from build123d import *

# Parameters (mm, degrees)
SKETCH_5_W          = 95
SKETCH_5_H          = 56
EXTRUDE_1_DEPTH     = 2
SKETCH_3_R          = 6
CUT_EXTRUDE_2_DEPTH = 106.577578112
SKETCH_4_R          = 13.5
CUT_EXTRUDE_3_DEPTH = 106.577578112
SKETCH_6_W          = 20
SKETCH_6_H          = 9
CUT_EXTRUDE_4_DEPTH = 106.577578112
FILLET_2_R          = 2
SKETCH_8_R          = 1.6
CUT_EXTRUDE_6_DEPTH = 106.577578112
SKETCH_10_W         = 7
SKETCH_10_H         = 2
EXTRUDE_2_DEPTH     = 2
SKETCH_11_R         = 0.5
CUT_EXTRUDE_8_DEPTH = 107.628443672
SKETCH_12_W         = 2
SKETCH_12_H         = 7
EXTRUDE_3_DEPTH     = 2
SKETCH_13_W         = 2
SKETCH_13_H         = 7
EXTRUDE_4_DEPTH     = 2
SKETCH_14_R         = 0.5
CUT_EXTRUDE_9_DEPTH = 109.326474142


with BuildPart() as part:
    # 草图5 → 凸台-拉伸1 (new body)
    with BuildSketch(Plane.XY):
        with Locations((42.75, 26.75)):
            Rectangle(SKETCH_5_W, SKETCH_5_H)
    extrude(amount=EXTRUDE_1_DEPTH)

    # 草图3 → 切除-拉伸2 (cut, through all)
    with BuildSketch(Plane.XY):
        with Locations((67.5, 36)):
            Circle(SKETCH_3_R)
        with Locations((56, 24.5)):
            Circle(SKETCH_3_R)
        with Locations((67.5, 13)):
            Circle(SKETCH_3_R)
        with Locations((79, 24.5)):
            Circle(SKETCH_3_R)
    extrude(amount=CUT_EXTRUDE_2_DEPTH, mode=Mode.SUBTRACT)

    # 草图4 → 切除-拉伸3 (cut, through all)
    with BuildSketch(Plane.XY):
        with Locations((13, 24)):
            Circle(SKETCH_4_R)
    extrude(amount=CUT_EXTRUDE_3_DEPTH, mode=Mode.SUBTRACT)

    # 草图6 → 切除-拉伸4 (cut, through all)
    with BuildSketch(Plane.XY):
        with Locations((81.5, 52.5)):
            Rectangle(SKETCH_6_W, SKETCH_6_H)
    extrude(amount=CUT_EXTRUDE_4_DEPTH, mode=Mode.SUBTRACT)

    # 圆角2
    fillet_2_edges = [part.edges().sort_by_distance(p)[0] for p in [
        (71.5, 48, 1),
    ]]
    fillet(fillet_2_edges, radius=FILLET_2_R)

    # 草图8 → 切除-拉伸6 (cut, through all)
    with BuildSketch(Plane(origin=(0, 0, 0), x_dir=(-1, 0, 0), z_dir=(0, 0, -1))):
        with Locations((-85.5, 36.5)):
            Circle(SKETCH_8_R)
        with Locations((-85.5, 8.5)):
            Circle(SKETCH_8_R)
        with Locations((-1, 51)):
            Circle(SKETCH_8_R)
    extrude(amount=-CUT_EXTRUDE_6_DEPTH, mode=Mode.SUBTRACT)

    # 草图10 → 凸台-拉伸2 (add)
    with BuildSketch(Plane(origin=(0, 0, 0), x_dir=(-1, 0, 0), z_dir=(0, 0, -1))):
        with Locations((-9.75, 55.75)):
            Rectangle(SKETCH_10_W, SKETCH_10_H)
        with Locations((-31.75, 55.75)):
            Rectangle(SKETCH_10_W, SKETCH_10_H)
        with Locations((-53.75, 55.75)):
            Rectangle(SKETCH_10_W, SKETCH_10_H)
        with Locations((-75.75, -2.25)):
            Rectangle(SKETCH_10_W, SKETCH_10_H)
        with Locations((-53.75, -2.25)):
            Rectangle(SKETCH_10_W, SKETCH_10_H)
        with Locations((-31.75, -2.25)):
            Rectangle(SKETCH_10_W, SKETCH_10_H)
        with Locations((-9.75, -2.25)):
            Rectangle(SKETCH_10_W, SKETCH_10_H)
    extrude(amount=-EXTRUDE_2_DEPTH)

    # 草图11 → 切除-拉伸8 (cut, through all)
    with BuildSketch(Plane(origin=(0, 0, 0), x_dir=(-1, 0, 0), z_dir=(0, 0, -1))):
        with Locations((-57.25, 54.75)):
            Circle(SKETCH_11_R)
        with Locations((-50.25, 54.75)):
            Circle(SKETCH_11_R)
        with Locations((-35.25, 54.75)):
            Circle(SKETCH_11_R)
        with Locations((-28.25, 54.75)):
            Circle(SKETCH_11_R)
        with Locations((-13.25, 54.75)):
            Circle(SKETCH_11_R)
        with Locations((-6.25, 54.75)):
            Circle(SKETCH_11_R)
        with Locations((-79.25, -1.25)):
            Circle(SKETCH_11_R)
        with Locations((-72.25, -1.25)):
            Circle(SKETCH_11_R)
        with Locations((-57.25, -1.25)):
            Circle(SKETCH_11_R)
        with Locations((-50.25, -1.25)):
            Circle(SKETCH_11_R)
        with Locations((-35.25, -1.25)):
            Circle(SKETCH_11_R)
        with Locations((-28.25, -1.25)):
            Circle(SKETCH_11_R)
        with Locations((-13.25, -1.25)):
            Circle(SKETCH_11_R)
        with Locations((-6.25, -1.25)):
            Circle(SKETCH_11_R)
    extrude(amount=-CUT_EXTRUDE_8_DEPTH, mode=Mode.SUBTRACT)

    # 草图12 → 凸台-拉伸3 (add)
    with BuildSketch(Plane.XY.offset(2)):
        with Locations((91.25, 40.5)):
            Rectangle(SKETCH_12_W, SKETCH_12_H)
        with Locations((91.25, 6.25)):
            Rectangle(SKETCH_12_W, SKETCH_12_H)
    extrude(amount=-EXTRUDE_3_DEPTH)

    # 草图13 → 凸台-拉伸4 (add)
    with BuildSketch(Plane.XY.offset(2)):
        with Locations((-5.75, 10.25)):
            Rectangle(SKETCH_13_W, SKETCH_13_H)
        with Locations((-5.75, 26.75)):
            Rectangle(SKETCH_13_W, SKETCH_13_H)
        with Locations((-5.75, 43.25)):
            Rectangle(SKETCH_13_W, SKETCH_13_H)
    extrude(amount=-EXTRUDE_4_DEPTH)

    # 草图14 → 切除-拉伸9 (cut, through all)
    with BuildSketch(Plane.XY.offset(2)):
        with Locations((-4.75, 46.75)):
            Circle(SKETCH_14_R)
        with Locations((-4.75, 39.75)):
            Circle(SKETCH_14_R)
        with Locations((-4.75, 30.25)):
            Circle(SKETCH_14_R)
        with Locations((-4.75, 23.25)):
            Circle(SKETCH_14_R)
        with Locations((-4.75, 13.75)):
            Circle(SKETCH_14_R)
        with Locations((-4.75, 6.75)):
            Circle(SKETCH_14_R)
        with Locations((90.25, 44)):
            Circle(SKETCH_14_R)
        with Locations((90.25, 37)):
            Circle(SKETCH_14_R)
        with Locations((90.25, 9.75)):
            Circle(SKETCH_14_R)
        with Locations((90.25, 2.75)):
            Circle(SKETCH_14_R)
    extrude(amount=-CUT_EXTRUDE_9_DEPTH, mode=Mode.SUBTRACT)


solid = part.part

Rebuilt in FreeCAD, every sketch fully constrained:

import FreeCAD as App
import Part
import Sketcher

V = App.Vector


def edges_at(feature, points):
    """Names of the edges that pass closest to the given points."""
    edges = feature.Shape.Edges
    near = lambda p: min(range(len(edges)), key=lambda i: edges[i].distToShape(Part.Vertex(*p))[0])
    return sorted({f"Edge{near(p) + 1}" for p in points})


def add_polygon(sketch, points):
    """Adds a closed chain of lines whose ends are joined by coincident constraints."""
    first, n = sketch.GeometryCount, len(points)
    for a, b in zip(points, points[1:] + points[:1]):
        sketch.addGeometry(Part.LineSegment(App.Vector(*a, 0), App.Vector(*b, 0)), False)
    for i in range(n):
        sketch.addConstraint(Sketcher.Constraint("Coincident", first + i, 2, first + (i + 1) % n, 1))

doc = App.newDocument("Part")
body = doc.addObject("PartDesign::Body", "Body")

sketch1 = body.newObject("Sketcher::SketchObject", "Sketch")
sketch1.AttachmentSupport = (doc.getObject("XY_Plane"), [""])
sketch1.MapMode = "FlatFace"
add_polygon(sketch1, [(-5, 55), (-5, -1), (90, -1), (90, 55)])
sketch1.addConstraint([
    Sketcher.Constraint("Vertical", 0),
    Sketcher.Constraint("Horizontal", 1),
    Sketcher.Constraint("Vertical", 2),
    Sketcher.Constraint("Horizontal", 3),
    Sketcher.Constraint("DistanceX", 1, 1, 1, 2, 95.0),
    Sketcher.Constraint("DistanceY", 0, 2, 0, 1, 56.0),
    Sketcher.Constraint("DistanceX", 0, 2, -1, 1, 4.75),
    Sketcher.Constraint("DistanceY", 0, 2, -1, 1, 1.25),
])
pad1 = body.newObject("PartDesign::Pad", "Pad")
pad1.Profile = sketch1
pad1.Length = 2

sketch2 = body.newObject("Sketcher::SketchObject", "Sketch001")
sketch2.AttachmentSupport = (doc.getObject("XY_Plane"), [""])
sketch2.MapMode = "FlatFace"
sketch2.addGeometry([
    Part.Circle(V(68, 36, 0), V(0, 0, 1), 6),
    Part.Circle(V(56, 24, 0), V(0, 0, 1), 6),
    Part.Circle(V(68, 13, 0), V(0, 0, 1), 6),
    Part.Circle(V(79, 24, 0), V(0, 0, 1), 6),
], False)
sketch2.addConstraint([
    Sketcher.Constraint("Equal", 0, 1),
    Sketcher.Constraint("Equal", 1, 2),
    Sketcher.Constraint("Equal", 2, 3),
    Sketcher.Constraint("Horizontal", 1, 3, 3, 3),
    Sketcher.Constraint("Vertical", 0, 3, 2, 3),
    Sketcher.Constraint("Diameter", 0, 12.0),
    Sketcher.Constraint("DistanceY", -1, 1, 0, 3, 36.0),
    Sketcher.Constraint("DistanceX", -1, 1, 1, 3, 56.0),
    Sketcher.Constraint("DistanceY", -1, 1, 2, 3, 13.0),
    Sketcher.Constraint("DistanceX", -1, 1, 3, 3, 79.0),
    Sketcher.Constraint("DistanceX", -1, 1, 0, 3, 67.5),
    Sketcher.Constraint("DistanceY", -1, 1, 1, 3, 24.5),
])
pocket1 = body.newObject("PartDesign::Pocket", "Pocket")
pocket1.Profile = sketch2
pocket1.Type = "ThroughAll"
pocket1.Reversed = True

sketch3 = body.newObject("Sketcher::SketchObject", "Sketch002")
sketch3.AttachmentSupport = (doc.getObject("XY_Plane"), [""])
sketch3.MapMode = "FlatFace"
sketch3.addGeometry(Part.Circle(V(13, 24, 0), V(0, 0, 1), 14), False)
sketch3.addConstraint([
    Sketcher.Constraint("Diameter", 0, 27.0),
    Sketcher.Constraint("DistanceX", -1, 1, 0, 3, 13.0),
    Sketcher.Constraint("DistanceY", -1, 1, 0, 3, 24.0),
])
pocket2 = body.newObject("PartDesign::Pocket", "Pocket001")
pocket2.Profile = sketch3
pocket2.Type = "ThroughAll"
pocket2.Reversed = True

sketch4 = body.newObject("Sketcher::SketchObject", "Sketch003")
sketch4.AttachmentSupport = (doc.getObject("XY_Plane"), [""])
sketch4.MapMode = "FlatFace"
add_polygon(sketch4, [(72, 57), (72, 48), (92, 48), (92, 57)])
sketch4.addConstraint([
    Sketcher.Constraint("Vertical", 0),
    Sketcher.Constraint("Horizontal", 1),
    Sketcher.Constraint("Vertical", 2),
    Sketcher.Constraint("Horizontal", 3),
    Sketcher.Constraint("DistanceX", 1, 1, 1, 2, 20.0),
    Sketcher.Constraint("DistanceY", 0, 2, 0, 1, 9.0),
    Sketcher.Constraint("DistanceY", -1, 1, 0, 2, 48.0),
    Sketcher.Constraint("DistanceX", -1, 1, 0, 2, 71.5),
])
pocket3 = body.newObject("PartDesign::Pocket", "Pocket002")
pocket3.Profile = sketch4
pocket3.Type = "ThroughAll"
pocket3.Reversed = True
doc.recompute()

fillet = body.newObject("PartDesign::Fillet", "Fillet")
fillet.Base = (pocket3, edges_at(pocket3, [(71.5, 48, 1)]))
fillet.Radius = 2

sketch5 = body.newObject("Sketcher::SketchObject", "Sketch004")
sketch5.AttachmentSupport = (doc.getObject("XY_Plane"), [""])
sketch5.MapMode = "FlatFace"
sketch5.addGeometry([
    Part.Circle(V(85.5, 36.5, 0), V(0, 0, 1), 1.6),
    Part.Circle(V(85.5, 8.5, 0), V(0, 0, 1), 1.6),
    Part.Circle(V(1, 51, 0), V(0, 0, 1), 1.6),
], False)
sketch5.addConstraint([
    Sketcher.Constraint("Equal", 0, 1),
    Sketcher.Constraint("Equal", 1, 2),
    Sketcher.Constraint("Vertical", 0, 3, 1, 3),
    Sketcher.Constraint("Diameter", 0, 3.2),
    Sketcher.Constraint("DistanceX", -1, 1, 2, 3, 1.0),
    Sketcher.Constraint("DistanceY", -1, 1, 2, 3, 51.0),
    Sketcher.Constraint("DistanceY", 1, 3, 0, 3, 28.0),
    Sketcher.Constraint("DistanceX", -1, 1, 0, 3, 85.5),
    Sketcher.Constraint("DistanceY", -1, 1, 0, 3, 36.5),
])
pocket4 = body.newObject("PartDesign::Pocket", "Pocket003")
pocket4.Profile = sketch5
pocket4.Type = "ThroughAll"
pocket4.Reversed = True

sketch6 = body.newObject("Sketcher::SketchObject", "Sketch005")
sketch6.AttachmentSupport = (doc.getObject("XY_Plane"), [""])
sketch6.MapMode = "FlatFace"
add_polygon(sketch6, [(13.2, 56.8), (13.2, 54.8), (6.2, 54.8), (6.2, 56.8)])
add_polygon(sketch6, [(35.2, 56.8), (35.2, 54.8), (28.2, 54.8), (28.2, 56.8)])
add_polygon(sketch6, [(57.2, 56.8), (57.2, 54.8), (50.2, 54.8), (50.2, 56.8)])
add_polygon(sketch6, [(79.2, -1.2), (79.2, -3.2), (72.2, -3.2), (72.2, -1.2)])
add_polygon(sketch6, [(57.2, -1.2), (57.2, -3.2), (50.2, -3.2), (50.2, -1.2)])
add_polygon(sketch6, [(35.2, -1.2), (35.2, -3.2), (28.2, -3.2), (28.2, -1.2)])
add_polygon(sketch6, [(13.2, -1.2), (13.2, -3.2), (6.2, -3.2), (6.2, -1.2)])
sketch6.addConstraint([
    Sketcher.Constraint("Vertical", 0),
    Sketcher.Constraint("Horizontal", 1),
    Sketcher.Constraint("Vertical", 2),
    Sketcher.Constraint("Horizontal", 3),
    Sketcher.Constraint("Vertical", 4),
    Sketcher.Constraint("Horizontal", 5),
    Sketcher.Constraint("Vertical", 6),
    Sketcher.Constraint("Horizontal", 7),
    Sketcher.Constraint("Vertical", 8),
    Sketcher.Constraint("Horizontal", 9),
    Sketcher.Constraint("Vertical", 10),
    Sketcher.Constraint("Horizontal", 11),
    Sketcher.Constraint("Vertical", 12),
    Sketcher.Constraint("Horizontal", 13),
    Sketcher.Constraint("Vertical", 14),
    Sketcher.Constraint("Horizontal", 15),
    Sketcher.Constraint("Vertical", 16),
    Sketcher.Constraint("Horizontal", 17),
    Sketcher.Constraint("Vertical", 18),
    Sketcher.Constraint("Horizontal", 19),
    Sketcher.Constraint("Vertical", 20),
    Sketcher.Constraint("Horizontal", 21),
    Sketcher.Constraint("Vertical", 22),
    Sketcher.Constraint("Horizontal", 23),
    Sketcher.Constraint("Vertical", 24),
    Sketcher.Constraint("Horizontal", 25),
    Sketcher.Constraint("Vertical", 26),
    Sketcher.Constraint("Horizontal", 27),
    Sketcher.Constraint("Horizontal", 1, 2, 4, 2),
    Sketcher.Constraint("Horizontal", 3, 2, 6, 2),
    Sketcher.Constraint("Horizontal", 5, 2, 8, 2),
    Sketcher.Constraint("Horizontal", 7, 2, 10, 2),
    Sketcher.Constraint("Horizontal", 13, 2, 16, 2),
    Sketcher.Constraint("Horizontal", 15, 2, 18, 2),
    Sketcher.Constraint("Horizontal", 17, 2, 20, 2),
    Sketcher.Constraint("Horizontal", 19, 2, 22, 2),
    Sketcher.Constraint("Horizontal", 21, 2, 24, 2),
    Sketcher.Constraint("Horizontal", 23, 2, 26, 2),
    Sketcher.Constraint("Vertical", 11, 2, 16, 2),
    Sketcher.Constraint("Vertical", 10, 2, 17, 2),
    Sketcher.Constraint("Vertical", 7, 2, 20, 2),
    Sketcher.Constraint("Vertical", 6, 2, 21, 2),
    Sketcher.Constraint("Vertical", 3, 2, 24, 2),
    Sketcher.Constraint("Vertical", 2, 2, 25, 2),
    Sketcher.Constraint("Equal", 3, 5),
    Sketcher.Constraint("Equal", 7, 9),
    Sketcher.Constraint("Equal", 11, 13),
    Sketcher.Constraint("Equal", 10, 12),
    Sketcher.Constraint("DistanceX", 1, 2, 1, 1, 7.0),
    Sketcher.Constraint("DistanceY", 0, 2, 0, 1, 2.0),
    Sketcher.Constraint("DistanceX", 0, 2, 4, 2, 22.0),
    Sketcher.Constraint("DistanceX", 4, 2, 8, 2, 22.0),
    Sketcher.Constraint("DistanceX", 8, 2, 12, 2, 22.0),
    Sketcher.Constraint("DistanceY", 12, 2, 8, 2, 58.0),
    Sketcher.Constraint("DistanceX", -1, 1, 0, 2, 13.25),
    Sketcher.Constraint("DistanceY", -1, 1, 0, 2, 54.75),
])
pad2 = body.newObject("PartDesign::Pad", "Pad001")
pad2.Profile = sketch6
pad2.Length = 2

sketch7 = body.newObject("Sketcher::SketchObject", "Sketch006")
sketch7.AttachmentSupport = (doc.getObject("XY_Plane"), [""])
sketch7.MapMode = "FlatFace"
sketch7.addGeometry([
    Part.Circle(V(57.2, 54.8, 0), V(0, 0, 1), 0.5),
    Part.Circle(V(50.2, 54.8, 0), V(0, 0, 1), 0.5),
    Part.Circle(V(35.2, 54.8, 0), V(0, 0, 1), 0.5),
    Part.Circle(V(28.2, 54.8, 0), V(0, 0, 1), 0.5),
    Part.Circle(V(13.2, 54.8, 0), V(0, 0, 1), 0.5),
    Part.Circle(V(6.2, 54.8, 0), V(0, 0, 1), 0.5),
    Part.Circle(V(79.2, -1.2, 0), V(0, 0, 1), 0.5),
    Part.Circle(V(72.2, -1.2, 0), V(0, 0, 1), 0.5),
    Part.Circle(V(57.2, -1.2, 0), V(0, 0, 1), 0.5),
    Part.Circle(V(50.2, -1.2, 0), V(0, 0, 1), 0.5),
    Part.Circle(V(35.2, -1.2, 0), V(0, 0, 1), 0.5),
    Part.Circle(V(28.2, -1.2, 0), V(0, 0, 1), 0.5),
    Part.Circle(V(13.2, -1.2, 0), V(0, 0, 1), 0.5),
    Part.Circle(V(6.2, -1.2, 0), V(0, 0, 1), 0.5),
], False)
sketch7.addConstraint([
    Sketcher.Constraint("Equal", 0, 1),
    Sketcher.Constraint("Equal", 1, 2),
    Sketcher.Constraint("Equal", 2, 3),
    Sketcher.Constraint("Equal", 3, 4),
    Sketcher.Constraint("Equal", 4, 5),
    Sketcher.Constraint("Equal", 5, 6),
    Sketcher.Constraint("Equal", 6, 7),
    Sketcher.Constraint("Equal", 7, 8),
    Sketcher.Constraint("Equal", 8, 9),
    Sketcher.Constraint("Equal", 9, 10),
    Sketcher.Constraint("Equal", 10, 11),
    Sketcher.Constraint("Equal", 11, 12),
    Sketcher.Constraint("Equal", 12, 13),
    Sketcher.Constraint("Horizontal", 0, 3, 1, 3),
    Sketcher.Constraint("Horizontal", 1, 3, 2, 3),
    Sketcher.Constraint("Horizontal", 2, 3, 3, 3),
    Sketcher.Constraint("Horizontal", 3, 3, 4, 3),
    Sketcher.Constraint("Horizontal", 4, 3, 5, 3),
    Sketcher.Constraint("Horizontal", 6, 3, 7, 3),
    Sketcher.Constraint("Horizontal", 7, 3, 8, 3),
    Sketcher.Constraint("Horizontal", 8, 3, 9, 3),
    Sketcher.Constraint("Horizontal", 9, 3, 10, 3),
    Sketcher.Constraint("Horizontal", 10, 3, 11, 3),
    Sketcher.Constraint("Horizontal", 11, 3, 12, 3),
    Sketcher.Constraint("Horizontal", 12, 3, 13, 3),
    Sketcher.Constraint("Vertical", 0, 3, 8, 3),
    Sketcher.Constraint("Vertical", 1, 3, 9, 3),
    Sketcher.Constraint("Vertical", 2, 3, 10, 3),
    Sketcher.Constraint("Vertical", 3, 3, 11, 3),
    Sketcher.Constraint("Vertical", 4, 3, 12, 3),
    Sketcher.Constraint("Vertical", 5, 3, 13, 3),
    Sketcher.Constraint("Diameter", 0, 1.0),
    Sketcher.Constraint("DistanceX", 1, 3, 0, 3, 7.0),
    Sketcher.Constraint("DistanceX", 2, 3, 1, 3, 15.0),
    Sketcher.Constraint("DistanceX", 3, 3, 2, 3, 7.0),
    Sketcher.Constraint("DistanceX", 4, 3, 3, 3, 15.0),
    Sketcher.Constraint("DistanceX", 5, 3, 4, 3, 7.0),
    Sketcher.Constraint("DistanceX", 0, 3, 6, 3, 22.0),
    Sketcher.Constraint("DistanceY", 6, 3, 0, 3, 56.0),
    Sketcher.Constraint("DistanceX", 7, 3, 6, 3, 7.0),
    Sketcher.Constraint("DistanceX", -1, 1, 0, 3, 57.25),
    Sketcher.Constraint("DistanceY", -1, 1, 0, 3, 54.75),
])
pocket5 = body.newObject("PartDesign::Pocket", "Pocket004")
pocket5.Profile = sketch7
pocket5.Type = "ThroughAll"
pocket5.Reversed = True

sketch8 = body.newObject("Sketcher::SketchObject", "Sketch007")
sketch8.AttachmentSupport = (doc.getObject("XY_Plane"), [""])
sketch8.MapMode = "FlatFace"
sketch8.AttachmentOffset = App.Placement(V(0, 0, 2), App.Rotation())
add_polygon(sketch8, [(90.2, 44), (90.2, 37), (92.2, 37), (92.2, 44)])
add_polygon(sketch8, [(90.2, 9.8), (90.2, 2.8), (92.2, 2.8), (92.2, 9.8)])
sketch8.addConstraint([
    Sketcher.Constraint("Vertical", 0),
    Sketcher.Constraint("Horizontal", 1),
    Sketcher.Constraint("Vertical", 2),
    Sketcher.Constraint("Horizontal", 3),
    Sketcher.Constraint("Vertical", 4),
    Sketcher.Constraint("Horizontal", 5),
    Sketcher.Constraint("Vertical", 6),
    Sketcher.Constraint("Horizontal", 7),
    Sketcher.Constraint("Vertical", 3, 2, 4, 2),
    Sketcher.Constraint("Vertical", 2, 2, 5, 2),
    Sketcher.Constraint("Equal", 2, 4),
    Sketcher.Constraint("DistanceX", 1, 1, 1, 2, 2.0),
    Sketcher.Constraint("DistanceY", 0, 2, 0, 1, 7.0),
    Sketcher.Constraint("DistanceY", -1, 1, 0, 2, 37.0),
    Sketcher.Constraint("DistanceX", -1, 1, 0, 2, 90.25),
    Sketcher.Constraint("DistanceY", -1, 1, 4, 2, 2.75),
])
pad3 = body.newObject("PartDesign::Pad", "Pad002")
pad3.Profile = sketch8
pad3.Length = 2
pad3.Reversed = True

sketch9 = body.newObject("Sketcher::SketchObject", "Sketch008")
sketch9.AttachmentSupport = (doc.getObject("XY_Plane"), [""])
sketch9.MapMode = "FlatFace"
sketch9.AttachmentOffset = App.Placement(V(0, 0, 2), App.Rotation())
add_polygon(sketch9, [(-6.8, 13.8), (-6.8, 6.8), (-4.8, 6.8), (-4.8, 13.8)])
add_polygon(sketch9, [(-6.8, 30.2), (-6.8, 23.2), (-4.8, 23.2), (-4.8, 30.2)])
add_polygon(sketch9, [(-6.8, 46.8), (-6.8, 39.8), (-4.8, 39.8), (-4.8, 46.8)])
sketch9.addConstraint([
    Sketcher.Constraint("Vertical", 0),
    Sketcher.Constraint("Horizontal", 1),
    Sketcher.Constraint("Vertical", 2),
    Sketcher.Constraint("Horizontal", 3),
    Sketcher.Constraint("Vertical", 4),
    Sketcher.Constraint("Horizontal", 5),
    Sketcher.Constraint("Vertical", 6),
    Sketcher.Constraint("Horizontal", 7),
    Sketcher.Constraint("Vertical", 8),
    Sketcher.Constraint("Horizontal", 9),
    Sketcher.Constraint("Vertical", 10),
    Sketcher.Constraint("Horizontal", 11),
    Sketcher.Constraint("Vertical", 3, 2, 4, 2),
    Sketcher.Constraint("Vertical", 2, 2, 5, 2),
    Sketcher.Constraint("Vertical", 7, 2, 8, 2),
    Sketcher.Constraint("Vertical", 6, 2, 9, 2),
    Sketcher.Constraint("Equal", 2, 4),
    Sketcher.Constraint("Equal", 6, 8),
    Sketcher.Constraint("DistanceX", 1, 1, 1, 2, 2.0),
    Sketcher.Constraint("DistanceY", 0, 2, 0, 1, 7.0),
    Sketcher.Constraint("DistanceY", 3, 2, 8, 2, 26.0),
    Sketcher.Constraint("DistanceY", 3, 2, 4, 2, 9.5),
    Sketcher.Constraint("DistanceX", 0, 2, -1, 1, 6.75),
    Sketcher.Constraint("DistanceY", -1, 1, 0, 2, 6.75),
])
pad4 = body.newObject("PartDesign::Pad", "Pad003")
pad4.Profile = sketch9
pad4.Length = 2
pad4.Reversed = True

sketch10 = body.newObject("Sketcher::SketchObject", "Sketch009")
sketch10.AttachmentSupport = (doc.getObject("XY_Plane"), [""])
sketch10.MapMode = "FlatFace"
sketch10.AttachmentOffset = App.Placement(V(0, 0, 2), App.Rotation())
sketch10.addGeometry([
    Part.Circle(V(-4.8, 46.8, 0), V(0, 0, 1), 0.5),
    Part.Circle(V(-4.8, 39.8, 0), V(0, 0, 1), 0.5),
    Part.Circle(V(-4.8, 30.2, 0), V(0, 0, 1), 0.5),
    Part.Circle(V(-4.8, 23.2, 0), V(0, 0, 1), 0.5),
    Part.Circle(V(-4.8, 13.8, 0), V(0, 0, 1), 0.5),
    Part.Circle(V(-4.8, 6.8, 0), V(0, 0, 1), 0.5),
    Part.Circle(V(90.2, 44, 0), V(0, 0, 1), 0.5),
    Part.Circle(V(90.2, 37, 0), V(0, 0, 1), 0.5),
    Part.Circle(V(90.2, 9.8, 0), V(0, 0, 1), 0.5),
    Part.Circle(V(90.2, 2.8, 0), V(0, 0, 1), 0.5),
], False)
sketch10.addConstraint([
    Sketcher.Constraint("Equal", 0, 1),
    Sketcher.Constraint("Equal", 1, 2),
    Sketcher.Constraint("Equal", 2, 3),
    Sketcher.Constraint("Equal", 3, 4),
    Sketcher.Constraint("Equal", 4, 5),
    Sketcher.Constraint("Equal", 5, 6),
    Sketcher.Constraint("Equal", 6, 7),
    Sketcher.Constraint("Equal", 7, 8),
    Sketcher.Constraint("Equal", 8, 9),
    Sketcher.Constraint("Vertical", 0, 3, 1, 3),
    Sketcher.Constraint("Vertical", 1, 3, 2, 3),
    Sketcher.Constraint("Vertical", 2, 3, 3, 3),
    Sketcher.Constraint("Vertical", 3, 3, 4, 3),
    Sketcher.Constraint("Vertical", 4, 3, 5, 3),
    Sketcher.Constraint("Vertical", 6, 3, 7, 3),
    Sketcher.Constraint("Vertical", 7, 3, 8, 3),
    Sketcher.Constraint("Vertical", 8, 3, 9, 3),
    Sketcher.Constraint("Diameter", 0, 1.0),
    Sketcher.Constraint("DistanceY", -1, 1, 6, 3, 44.0),
    Sketcher.Constraint("DistanceY", -1, 1, 7, 3, 37.0),
    Sketcher.Constraint("DistanceY", 1, 3, 0, 3, 7.0),
    Sketcher.Constraint("DistanceY", 3, 3, 2, 3, 7.0),
    Sketcher.Constraint("DistanceY", 4, 3, 1, 3, 26.0),
    Sketcher.Constraint("DistanceY", 5, 3, 4, 3, 7.0),
    Sketcher.Constraint("DistanceX", 0, 3, 6, 3, 95.0),
    Sketcher.Constraint("DistanceY", 5, 3, 8, 3, 3.0),
    Sketcher.Constraint("DistanceY", 9, 3, 8, 3, 7.0),
    Sketcher.Constraint("DistanceY", 2, 3, 1, 3, 9.5),
    Sketcher.Constraint("DistanceX", 0, 3, -1, 1, 4.75),
    Sketcher.Constraint("DistanceY", -1, 1, 0, 3, 46.75),
])
pocket6 = body.newObject("PartDesign::Pocket", "Pocket005")
pocket6.Profile = sketch10
pocket6.Type = "ThroughAll"

doc.recompute()
